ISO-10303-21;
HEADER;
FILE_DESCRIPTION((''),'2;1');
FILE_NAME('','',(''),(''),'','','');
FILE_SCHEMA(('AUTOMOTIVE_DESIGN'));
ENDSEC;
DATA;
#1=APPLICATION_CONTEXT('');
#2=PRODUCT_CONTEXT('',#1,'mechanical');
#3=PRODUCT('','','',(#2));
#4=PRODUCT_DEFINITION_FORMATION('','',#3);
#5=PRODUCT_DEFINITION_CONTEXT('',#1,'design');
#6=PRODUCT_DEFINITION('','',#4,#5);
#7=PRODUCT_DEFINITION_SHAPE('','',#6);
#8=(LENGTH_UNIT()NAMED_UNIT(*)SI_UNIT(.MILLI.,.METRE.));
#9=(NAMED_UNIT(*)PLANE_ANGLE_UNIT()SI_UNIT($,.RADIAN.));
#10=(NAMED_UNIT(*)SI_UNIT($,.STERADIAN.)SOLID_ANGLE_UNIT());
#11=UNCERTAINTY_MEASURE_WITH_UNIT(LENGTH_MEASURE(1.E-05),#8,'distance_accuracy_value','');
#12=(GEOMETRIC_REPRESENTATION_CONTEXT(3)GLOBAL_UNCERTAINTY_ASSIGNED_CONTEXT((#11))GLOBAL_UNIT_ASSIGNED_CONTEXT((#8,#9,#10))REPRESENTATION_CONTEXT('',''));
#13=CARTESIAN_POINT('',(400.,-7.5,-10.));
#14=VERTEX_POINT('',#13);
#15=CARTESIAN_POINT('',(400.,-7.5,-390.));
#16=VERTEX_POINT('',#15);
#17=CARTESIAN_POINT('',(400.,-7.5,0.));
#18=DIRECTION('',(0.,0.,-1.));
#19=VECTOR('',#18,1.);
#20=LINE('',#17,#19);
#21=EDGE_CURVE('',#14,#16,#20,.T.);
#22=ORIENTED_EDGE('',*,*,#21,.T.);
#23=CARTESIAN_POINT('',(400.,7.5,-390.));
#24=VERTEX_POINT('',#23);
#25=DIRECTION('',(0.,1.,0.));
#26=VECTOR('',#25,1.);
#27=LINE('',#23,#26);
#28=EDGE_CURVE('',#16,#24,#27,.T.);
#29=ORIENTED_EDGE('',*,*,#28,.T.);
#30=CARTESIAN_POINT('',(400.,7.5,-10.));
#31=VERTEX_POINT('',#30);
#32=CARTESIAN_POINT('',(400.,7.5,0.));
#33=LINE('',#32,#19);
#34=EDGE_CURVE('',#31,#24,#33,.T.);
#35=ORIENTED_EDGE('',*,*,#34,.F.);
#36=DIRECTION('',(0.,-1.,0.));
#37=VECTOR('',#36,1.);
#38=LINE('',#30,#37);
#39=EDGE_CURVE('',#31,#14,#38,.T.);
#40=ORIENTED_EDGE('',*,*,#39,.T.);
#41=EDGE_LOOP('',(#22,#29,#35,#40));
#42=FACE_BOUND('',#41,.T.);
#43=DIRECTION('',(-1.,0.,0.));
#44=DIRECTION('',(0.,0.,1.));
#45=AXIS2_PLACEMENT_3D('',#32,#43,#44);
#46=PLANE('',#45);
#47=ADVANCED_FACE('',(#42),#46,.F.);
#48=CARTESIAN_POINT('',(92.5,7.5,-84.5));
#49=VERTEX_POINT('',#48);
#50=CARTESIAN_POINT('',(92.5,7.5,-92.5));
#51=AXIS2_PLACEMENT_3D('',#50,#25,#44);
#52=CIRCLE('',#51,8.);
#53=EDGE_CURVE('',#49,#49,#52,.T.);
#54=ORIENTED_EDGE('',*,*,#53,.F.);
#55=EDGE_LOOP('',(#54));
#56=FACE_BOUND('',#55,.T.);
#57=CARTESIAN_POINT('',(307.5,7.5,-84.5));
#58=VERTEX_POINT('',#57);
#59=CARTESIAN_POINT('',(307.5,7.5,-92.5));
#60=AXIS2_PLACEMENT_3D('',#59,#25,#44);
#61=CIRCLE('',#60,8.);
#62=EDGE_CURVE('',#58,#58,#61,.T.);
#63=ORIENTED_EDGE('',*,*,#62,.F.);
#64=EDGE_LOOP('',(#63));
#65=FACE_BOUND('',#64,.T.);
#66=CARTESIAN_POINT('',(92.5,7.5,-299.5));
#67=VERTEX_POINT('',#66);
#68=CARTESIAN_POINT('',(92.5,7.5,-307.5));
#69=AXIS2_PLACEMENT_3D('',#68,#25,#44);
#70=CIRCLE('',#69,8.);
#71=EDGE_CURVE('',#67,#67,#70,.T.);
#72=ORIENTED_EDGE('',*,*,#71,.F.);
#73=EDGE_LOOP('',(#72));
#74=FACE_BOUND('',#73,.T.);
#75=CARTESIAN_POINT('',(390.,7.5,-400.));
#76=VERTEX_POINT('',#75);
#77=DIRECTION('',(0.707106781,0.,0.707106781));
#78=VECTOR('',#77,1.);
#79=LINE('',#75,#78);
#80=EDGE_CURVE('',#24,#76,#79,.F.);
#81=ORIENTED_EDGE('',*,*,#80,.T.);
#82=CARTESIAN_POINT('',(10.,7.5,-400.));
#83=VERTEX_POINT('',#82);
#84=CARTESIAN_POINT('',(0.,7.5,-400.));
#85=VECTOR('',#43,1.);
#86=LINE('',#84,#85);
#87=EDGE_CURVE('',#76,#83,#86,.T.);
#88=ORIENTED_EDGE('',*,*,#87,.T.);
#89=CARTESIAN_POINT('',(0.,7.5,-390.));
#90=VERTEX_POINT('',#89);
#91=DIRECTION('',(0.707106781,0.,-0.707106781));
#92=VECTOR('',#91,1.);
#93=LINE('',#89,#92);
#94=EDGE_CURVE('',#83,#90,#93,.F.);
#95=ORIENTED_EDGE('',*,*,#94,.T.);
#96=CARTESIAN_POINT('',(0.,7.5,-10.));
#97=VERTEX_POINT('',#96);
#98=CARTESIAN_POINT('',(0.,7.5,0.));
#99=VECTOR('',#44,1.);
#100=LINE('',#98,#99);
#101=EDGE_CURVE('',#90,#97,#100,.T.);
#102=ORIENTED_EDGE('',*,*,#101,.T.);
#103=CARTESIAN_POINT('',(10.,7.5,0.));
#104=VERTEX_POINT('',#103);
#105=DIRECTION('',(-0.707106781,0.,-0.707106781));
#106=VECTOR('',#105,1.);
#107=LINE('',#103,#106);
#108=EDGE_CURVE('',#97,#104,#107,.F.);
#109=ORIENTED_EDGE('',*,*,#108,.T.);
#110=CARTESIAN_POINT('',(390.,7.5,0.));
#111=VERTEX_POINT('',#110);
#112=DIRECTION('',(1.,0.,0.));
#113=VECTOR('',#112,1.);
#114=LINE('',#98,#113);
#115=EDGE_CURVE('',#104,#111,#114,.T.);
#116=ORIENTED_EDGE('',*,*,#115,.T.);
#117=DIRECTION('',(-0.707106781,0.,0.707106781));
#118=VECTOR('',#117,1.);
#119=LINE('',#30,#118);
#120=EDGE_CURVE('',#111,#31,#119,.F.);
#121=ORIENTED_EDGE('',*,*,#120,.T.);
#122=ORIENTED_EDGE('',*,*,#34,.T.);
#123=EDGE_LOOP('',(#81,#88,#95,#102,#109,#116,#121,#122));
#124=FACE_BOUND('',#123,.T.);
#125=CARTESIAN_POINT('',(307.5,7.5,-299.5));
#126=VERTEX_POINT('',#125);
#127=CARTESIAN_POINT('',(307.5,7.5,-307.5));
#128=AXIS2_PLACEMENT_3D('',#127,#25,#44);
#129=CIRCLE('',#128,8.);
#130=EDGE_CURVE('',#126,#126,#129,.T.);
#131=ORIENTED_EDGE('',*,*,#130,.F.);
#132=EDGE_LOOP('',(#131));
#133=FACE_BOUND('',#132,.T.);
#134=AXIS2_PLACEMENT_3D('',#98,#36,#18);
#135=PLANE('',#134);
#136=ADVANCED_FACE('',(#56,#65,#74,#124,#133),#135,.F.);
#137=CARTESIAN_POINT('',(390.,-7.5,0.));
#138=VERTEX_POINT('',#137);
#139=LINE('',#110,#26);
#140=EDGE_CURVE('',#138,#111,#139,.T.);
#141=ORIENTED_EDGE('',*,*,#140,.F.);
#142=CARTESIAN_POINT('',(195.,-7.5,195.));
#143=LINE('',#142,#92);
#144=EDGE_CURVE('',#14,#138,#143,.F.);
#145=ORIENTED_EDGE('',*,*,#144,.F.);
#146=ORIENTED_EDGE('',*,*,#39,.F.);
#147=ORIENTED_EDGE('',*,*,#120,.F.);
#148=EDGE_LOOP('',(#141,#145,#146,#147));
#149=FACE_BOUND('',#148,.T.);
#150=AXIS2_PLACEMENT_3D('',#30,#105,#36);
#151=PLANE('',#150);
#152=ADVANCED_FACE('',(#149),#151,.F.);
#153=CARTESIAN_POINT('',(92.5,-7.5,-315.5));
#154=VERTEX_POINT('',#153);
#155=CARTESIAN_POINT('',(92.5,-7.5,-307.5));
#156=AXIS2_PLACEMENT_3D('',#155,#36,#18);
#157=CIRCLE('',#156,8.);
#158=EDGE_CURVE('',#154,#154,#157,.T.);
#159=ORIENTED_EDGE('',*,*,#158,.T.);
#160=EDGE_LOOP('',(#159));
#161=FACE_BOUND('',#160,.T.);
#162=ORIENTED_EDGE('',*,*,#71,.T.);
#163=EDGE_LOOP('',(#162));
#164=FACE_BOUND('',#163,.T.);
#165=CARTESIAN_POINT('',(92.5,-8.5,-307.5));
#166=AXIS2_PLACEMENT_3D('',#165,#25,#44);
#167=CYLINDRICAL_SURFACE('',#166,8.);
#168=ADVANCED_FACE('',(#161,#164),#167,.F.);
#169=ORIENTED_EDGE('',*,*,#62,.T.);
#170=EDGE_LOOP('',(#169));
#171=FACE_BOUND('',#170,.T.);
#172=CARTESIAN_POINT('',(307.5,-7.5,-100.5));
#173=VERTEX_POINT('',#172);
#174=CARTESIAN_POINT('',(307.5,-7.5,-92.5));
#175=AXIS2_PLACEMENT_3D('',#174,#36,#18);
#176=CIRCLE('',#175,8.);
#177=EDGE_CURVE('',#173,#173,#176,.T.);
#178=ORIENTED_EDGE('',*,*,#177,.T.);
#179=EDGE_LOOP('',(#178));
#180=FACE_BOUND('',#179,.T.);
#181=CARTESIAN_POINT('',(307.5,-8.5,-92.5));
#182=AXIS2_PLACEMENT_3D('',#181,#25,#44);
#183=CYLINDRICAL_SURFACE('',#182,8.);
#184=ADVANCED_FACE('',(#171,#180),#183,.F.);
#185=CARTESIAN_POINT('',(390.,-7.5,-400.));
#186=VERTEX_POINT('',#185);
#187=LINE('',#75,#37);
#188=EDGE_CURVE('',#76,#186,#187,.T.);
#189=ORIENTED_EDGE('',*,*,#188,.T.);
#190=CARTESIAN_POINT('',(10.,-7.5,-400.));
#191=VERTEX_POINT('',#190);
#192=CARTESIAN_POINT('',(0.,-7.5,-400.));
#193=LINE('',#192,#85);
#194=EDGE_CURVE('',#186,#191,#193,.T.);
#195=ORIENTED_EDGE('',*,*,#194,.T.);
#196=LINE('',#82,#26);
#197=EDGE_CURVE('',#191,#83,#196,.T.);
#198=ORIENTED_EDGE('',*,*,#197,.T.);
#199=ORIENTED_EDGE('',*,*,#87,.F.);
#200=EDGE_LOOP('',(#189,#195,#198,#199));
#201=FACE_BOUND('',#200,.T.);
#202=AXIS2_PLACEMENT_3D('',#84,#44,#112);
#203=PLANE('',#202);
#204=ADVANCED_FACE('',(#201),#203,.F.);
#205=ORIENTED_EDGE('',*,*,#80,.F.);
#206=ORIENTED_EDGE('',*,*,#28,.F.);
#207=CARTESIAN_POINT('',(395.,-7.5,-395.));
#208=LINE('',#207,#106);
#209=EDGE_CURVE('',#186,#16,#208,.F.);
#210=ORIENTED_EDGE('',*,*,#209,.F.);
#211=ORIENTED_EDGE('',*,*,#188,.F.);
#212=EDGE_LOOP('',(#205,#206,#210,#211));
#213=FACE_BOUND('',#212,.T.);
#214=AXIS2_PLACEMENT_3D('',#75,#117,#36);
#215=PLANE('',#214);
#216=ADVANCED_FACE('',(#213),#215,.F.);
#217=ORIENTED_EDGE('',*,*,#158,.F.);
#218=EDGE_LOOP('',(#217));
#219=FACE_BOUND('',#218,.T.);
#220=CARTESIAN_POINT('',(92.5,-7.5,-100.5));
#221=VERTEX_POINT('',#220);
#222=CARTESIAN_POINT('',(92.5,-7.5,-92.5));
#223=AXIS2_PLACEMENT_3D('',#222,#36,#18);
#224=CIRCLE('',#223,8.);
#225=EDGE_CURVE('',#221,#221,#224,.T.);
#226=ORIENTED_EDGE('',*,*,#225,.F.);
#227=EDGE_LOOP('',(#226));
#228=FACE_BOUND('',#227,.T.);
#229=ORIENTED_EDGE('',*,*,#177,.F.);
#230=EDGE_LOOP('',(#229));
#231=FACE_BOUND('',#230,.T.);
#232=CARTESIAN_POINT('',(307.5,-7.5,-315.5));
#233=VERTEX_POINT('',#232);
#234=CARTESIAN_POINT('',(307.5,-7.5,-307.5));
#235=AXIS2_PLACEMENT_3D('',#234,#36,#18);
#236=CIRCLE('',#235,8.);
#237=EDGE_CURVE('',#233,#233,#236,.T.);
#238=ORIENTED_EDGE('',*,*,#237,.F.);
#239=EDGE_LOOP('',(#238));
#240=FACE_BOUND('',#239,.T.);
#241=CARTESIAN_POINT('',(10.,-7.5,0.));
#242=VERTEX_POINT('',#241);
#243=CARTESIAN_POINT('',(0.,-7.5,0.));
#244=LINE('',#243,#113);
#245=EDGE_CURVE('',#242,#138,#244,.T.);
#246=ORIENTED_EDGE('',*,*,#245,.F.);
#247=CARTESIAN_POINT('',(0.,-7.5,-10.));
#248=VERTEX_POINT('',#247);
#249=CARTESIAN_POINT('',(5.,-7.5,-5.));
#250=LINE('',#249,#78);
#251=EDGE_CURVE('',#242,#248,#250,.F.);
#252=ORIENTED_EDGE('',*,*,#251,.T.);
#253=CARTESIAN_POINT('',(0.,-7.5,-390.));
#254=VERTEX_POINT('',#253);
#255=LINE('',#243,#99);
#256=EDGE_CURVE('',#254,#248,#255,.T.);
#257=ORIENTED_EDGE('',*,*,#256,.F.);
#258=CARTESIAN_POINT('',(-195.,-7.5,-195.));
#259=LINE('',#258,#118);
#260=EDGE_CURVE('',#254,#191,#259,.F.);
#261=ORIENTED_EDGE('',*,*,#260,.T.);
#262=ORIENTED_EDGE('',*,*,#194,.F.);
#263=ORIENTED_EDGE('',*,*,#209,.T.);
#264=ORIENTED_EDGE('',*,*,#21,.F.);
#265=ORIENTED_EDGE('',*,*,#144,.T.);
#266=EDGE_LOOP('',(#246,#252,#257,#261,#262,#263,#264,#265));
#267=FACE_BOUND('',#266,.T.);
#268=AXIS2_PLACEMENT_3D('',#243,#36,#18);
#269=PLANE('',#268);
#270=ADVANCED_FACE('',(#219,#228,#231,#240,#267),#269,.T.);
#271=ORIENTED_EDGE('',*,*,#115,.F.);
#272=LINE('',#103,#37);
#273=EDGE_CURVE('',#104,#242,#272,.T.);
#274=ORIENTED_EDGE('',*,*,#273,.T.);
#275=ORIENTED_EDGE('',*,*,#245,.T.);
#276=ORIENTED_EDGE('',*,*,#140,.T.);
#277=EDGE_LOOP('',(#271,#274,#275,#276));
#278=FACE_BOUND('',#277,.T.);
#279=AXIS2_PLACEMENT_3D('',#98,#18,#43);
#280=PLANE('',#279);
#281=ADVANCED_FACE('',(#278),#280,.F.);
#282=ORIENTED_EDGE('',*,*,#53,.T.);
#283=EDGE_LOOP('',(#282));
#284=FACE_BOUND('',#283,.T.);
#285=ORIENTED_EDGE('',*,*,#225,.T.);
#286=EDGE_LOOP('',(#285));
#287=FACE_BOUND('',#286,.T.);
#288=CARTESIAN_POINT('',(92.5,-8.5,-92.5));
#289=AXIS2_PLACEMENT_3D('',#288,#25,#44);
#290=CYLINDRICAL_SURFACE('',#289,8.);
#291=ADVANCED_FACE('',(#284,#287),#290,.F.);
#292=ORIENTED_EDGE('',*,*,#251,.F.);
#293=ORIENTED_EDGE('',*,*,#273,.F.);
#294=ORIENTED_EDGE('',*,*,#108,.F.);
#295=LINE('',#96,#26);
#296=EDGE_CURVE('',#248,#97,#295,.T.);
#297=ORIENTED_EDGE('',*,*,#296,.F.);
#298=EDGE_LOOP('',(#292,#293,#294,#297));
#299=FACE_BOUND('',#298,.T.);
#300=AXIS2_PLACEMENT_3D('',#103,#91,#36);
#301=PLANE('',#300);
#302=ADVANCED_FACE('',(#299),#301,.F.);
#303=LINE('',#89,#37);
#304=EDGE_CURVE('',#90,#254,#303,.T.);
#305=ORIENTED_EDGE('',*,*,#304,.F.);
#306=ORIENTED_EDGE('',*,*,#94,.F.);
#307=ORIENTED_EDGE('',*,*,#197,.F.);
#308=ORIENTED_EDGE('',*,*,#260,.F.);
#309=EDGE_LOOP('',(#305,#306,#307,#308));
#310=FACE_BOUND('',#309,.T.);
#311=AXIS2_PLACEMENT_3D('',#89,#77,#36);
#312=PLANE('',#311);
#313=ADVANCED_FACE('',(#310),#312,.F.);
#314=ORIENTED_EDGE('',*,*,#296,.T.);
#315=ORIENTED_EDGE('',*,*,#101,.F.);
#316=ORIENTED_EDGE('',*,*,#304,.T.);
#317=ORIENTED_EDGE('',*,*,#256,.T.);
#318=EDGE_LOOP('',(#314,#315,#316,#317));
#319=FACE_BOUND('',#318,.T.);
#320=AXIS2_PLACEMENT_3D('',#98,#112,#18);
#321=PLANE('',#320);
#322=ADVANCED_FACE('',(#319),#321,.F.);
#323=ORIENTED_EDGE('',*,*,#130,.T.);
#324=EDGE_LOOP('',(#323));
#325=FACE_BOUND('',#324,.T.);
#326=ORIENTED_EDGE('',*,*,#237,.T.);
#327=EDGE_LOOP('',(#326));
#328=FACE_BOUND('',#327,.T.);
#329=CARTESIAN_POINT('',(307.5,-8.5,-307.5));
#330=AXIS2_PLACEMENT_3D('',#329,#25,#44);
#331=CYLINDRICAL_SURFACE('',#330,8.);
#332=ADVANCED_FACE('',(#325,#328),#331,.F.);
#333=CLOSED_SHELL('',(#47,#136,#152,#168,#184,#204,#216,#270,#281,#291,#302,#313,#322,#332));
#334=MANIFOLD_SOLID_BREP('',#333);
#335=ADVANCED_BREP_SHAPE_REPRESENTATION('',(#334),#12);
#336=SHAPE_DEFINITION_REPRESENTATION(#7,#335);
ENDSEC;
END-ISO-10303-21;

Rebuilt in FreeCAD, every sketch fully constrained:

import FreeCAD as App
import Part
import Sketcher

V = App.Vector
Q = App.Units.Quantity


def edges_at(feature, points):
    """Names of the edges that pass closest to the given points."""
    edges = feature.Shape.Edges
    near = lambda p: min(range(len(edges)), key=lambda i: edges[i].distToShape(Part.Vertex(*p))[0])
    return sorted({f"Edge{near(p) + 1}" for p in points})

doc = App.newDocument("Part")
body = doc.addObject("PartDesign::Body", "Body")

# Sketch on XZ plane
sketch1 = body.newObject("Sketcher::SketchObject", "Sketch")
sketch1.AttachmentSupport = (doc.getObject("XZ_Plane"), [""])
sketch1.MapMode = "FlatFace"
sketch1.addGeometry([
    Part.LineSegment(V(0, -400, 0), V(0, 0, 0)),
    Part.LineSegment(V(0, 0, 0), V(400, 0, 0)),
    Part.LineSegment(V(400, 0, 0), V(400, -400, 0)),
    Part.LineSegment(V(400, -400, 0), V(0, -400, 0)),
], False)
sketch1.addConstraint([
    Sketcher.Constraint("Coincident", 0, 2, 1, 1),
    Sketcher.Constraint("Coincident", 1, 2, 2, 1),
    Sketcher.Constraint("Coincident", 2, 2, 3, 1),
    Sketcher.Constraint("Coincident", 3, 2, 0, 1),
    Sketcher.Constraint("Vertical", 0),
    Sketcher.Constraint("Horizontal", 1),
    Sketcher.Constraint("Vertical", 2),
    Sketcher.Constraint("Horizontal", 3),
    Sketcher.Constraint("Coincident", 0, 2, -1, 1),
    Sketcher.Constraint("Equal", 3, 0),
    Sketcher.Constraint("DistanceX", 1, 1, 1, 2, Q("400 mm")),
])
pad1 = body.newObject("PartDesign::Pad", "Pad")
pad1.Profile = sketch1
pad1.Length = 15
pad1.Midplane = True
doc.recompute()

chamfer = body.newObject("PartDesign::Chamfer", "Chamfer")
chamfer.Base = (pad1, edges_at(pad1, [
    (0, 0, -400),
    (400, 0, -400),
    (400, 0, 0),
    (0, 0, 0),
]))
chamfer.Size = 10

# Sketch on XZ plane
sketch2 = body.newObject("Sketcher::SketchObject", "Sketch001")
sketch2.AttachmentSupport = (doc.getObject("XZ_Plane"), [""])
sketch2.MapMode = "FlatFace"
sketch2.AttachmentOffset = App.Placement(V(0, 0, -7.5), App.Rotation())
sketch2.addGeometry([
    Part.Circle(V(308, -308, 0), V(0, 0, 1), 8),
    Part.Circle(V(308, -92, 0), V(0, 0, 1), 8),
    Part.Circle(V(92, -92, 0), V(0, 0, 1), 8),
    Part.Circle(V(92, -308, 0), V(0, 0, 1), 8),
], False)
sketch2.addConstraint([
    Sketcher.Constraint("Equal", 0, 1),
    Sketcher.Constraint("Equal", 1, 2),
    Sketcher.Constraint("Equal", 2, 3),
    Sketcher.Constraint("Horizontal", 1, 3, 2, 3),
    Sketcher.Constraint("Horizontal", 0, 3, 3, 3),
    Sketcher.Constraint("Vertical", 0, 3, 1, 3),
    Sketcher.Constraint("Vertical", 2, 3, 3, 3),
    Sketcher.Constraint("Diameter", 0, Q("16 mm")),
    Sketcher.Constraint("DistanceY", 0, 3, 1, 3, Q("215 mm")),
    Sketcher.Constraint("DistanceX", 2, 3, 1, 3, Q("215 mm")),
    Sketcher.Constraint("DistanceX", -1, 1, 0, 3, Q("307.5 mm")),
    Sketcher.Constraint("DistanceY", 0, 3, -1, 1, Q("307.5 mm")),
])
pocket1 = body.newObject("PartDesign::Pocket", "Pocket")
pocket1.Profile = sketch2
pocket1.Length = 16
pocket1.Reversed = True

doc.recompute()
